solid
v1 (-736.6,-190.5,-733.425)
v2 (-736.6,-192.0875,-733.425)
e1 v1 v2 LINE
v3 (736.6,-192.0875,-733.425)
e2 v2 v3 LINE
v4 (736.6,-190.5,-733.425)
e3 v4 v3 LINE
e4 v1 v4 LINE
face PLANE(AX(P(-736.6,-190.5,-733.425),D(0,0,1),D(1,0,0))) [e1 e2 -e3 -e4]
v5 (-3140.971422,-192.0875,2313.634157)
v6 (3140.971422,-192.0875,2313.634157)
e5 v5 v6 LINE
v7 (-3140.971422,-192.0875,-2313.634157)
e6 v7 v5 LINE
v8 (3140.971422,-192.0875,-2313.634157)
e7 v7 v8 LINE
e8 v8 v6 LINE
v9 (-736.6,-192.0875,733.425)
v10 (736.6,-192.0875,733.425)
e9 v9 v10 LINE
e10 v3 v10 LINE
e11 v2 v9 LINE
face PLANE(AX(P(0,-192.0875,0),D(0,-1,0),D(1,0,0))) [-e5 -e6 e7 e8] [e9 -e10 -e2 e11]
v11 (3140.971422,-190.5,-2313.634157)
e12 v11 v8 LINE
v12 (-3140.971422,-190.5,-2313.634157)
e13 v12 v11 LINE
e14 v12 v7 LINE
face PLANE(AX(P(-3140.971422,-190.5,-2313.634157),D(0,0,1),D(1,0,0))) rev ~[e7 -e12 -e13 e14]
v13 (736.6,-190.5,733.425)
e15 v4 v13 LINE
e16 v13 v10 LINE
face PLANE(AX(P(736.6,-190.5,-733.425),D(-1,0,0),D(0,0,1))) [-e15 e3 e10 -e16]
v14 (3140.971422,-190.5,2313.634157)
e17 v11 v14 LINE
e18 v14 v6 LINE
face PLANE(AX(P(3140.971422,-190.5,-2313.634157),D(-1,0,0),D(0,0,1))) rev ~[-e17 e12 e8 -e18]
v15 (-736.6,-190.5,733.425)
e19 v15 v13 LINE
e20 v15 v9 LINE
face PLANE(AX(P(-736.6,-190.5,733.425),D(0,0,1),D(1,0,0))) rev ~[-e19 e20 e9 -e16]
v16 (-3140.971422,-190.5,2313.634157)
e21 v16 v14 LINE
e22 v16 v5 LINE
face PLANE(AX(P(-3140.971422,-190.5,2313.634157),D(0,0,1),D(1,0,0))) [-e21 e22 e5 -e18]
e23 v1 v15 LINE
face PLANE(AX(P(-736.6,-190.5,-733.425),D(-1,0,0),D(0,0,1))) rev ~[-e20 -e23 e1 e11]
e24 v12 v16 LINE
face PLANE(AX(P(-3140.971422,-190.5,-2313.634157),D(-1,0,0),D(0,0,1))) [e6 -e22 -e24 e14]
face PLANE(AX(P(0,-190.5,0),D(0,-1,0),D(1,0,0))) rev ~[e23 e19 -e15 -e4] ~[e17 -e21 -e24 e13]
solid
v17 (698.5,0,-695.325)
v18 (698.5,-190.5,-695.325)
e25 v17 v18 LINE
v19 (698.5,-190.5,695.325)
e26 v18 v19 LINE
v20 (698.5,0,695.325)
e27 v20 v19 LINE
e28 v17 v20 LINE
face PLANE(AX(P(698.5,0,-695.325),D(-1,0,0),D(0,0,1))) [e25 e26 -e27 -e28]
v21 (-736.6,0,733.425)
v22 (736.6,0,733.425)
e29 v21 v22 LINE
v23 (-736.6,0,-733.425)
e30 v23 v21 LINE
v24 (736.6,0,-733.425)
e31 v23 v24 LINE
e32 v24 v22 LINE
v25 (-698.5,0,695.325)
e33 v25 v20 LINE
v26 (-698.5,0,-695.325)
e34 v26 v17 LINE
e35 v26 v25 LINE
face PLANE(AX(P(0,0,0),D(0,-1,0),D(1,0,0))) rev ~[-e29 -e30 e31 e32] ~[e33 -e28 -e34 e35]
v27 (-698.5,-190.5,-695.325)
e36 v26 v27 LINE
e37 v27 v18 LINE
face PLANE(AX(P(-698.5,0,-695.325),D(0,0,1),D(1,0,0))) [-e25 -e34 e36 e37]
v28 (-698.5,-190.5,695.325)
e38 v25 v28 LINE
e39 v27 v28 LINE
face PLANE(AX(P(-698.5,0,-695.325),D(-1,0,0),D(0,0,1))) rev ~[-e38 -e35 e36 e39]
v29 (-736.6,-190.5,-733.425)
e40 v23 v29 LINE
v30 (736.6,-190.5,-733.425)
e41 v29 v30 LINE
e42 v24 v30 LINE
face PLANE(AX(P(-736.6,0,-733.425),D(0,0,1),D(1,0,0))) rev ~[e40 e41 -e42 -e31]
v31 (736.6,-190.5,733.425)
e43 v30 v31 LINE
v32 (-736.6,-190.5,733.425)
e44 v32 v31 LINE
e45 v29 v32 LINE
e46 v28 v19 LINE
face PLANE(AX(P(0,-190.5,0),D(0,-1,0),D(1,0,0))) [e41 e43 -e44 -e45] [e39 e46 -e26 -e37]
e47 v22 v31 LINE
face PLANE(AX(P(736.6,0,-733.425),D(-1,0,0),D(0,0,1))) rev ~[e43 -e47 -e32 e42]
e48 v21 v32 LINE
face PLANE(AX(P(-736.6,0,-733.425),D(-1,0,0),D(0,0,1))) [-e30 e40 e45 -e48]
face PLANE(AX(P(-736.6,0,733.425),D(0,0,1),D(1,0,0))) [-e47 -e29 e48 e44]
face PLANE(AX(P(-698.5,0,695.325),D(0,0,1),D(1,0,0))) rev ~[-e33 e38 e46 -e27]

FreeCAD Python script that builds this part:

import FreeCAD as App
import Part
import Sketcher
Q = App.Units.Quantity


def add_polygon(sketch, points):
    """Adds a closed chain of lines whose ends are joined by coincident constraints."""
    first, n = sketch.GeometryCount, len(points)
    for a, b in zip(points, points[1:] + points[:1]):
        sketch.addGeometry(Part.LineSegment(App.Vector(*a, 0), App.Vector(*b, 0)), False)
    for i in range(n):
        sketch.addConstraint(Sketcher.Constraint("Coincident", first + i, 2, first + (i + 1) % n, 1))

doc = App.newDocument("Part")
params = doc.addObject("Spreadsheet::Sheet", "Params")
for row, (alias, value) in enumerate([
    ("sketch1_width", "58 in"),
    ("sketch1_width2", "55 in"),
    ("sketch1_height", "57.75 in"),
    ("sketch1_height2", "54.75 in"),
    ("pad1_length", "7.5 in"),
    ("sketch2_width", "58 in"),
    ("sketch2_height", "57.75 in"),
    ("pad2_length", "0.0625 in"),
], start=1):
    params.set(f"A{row}", alias)
    params.set(f"B{row}", "=" + value)
    params.setAlias(f"B{row}", alias)

body = doc.addObject("PartDesign::Body", "Body")

# Sketch on XZ plane
sketch1 = body.newObject("Sketcher::SketchObject", "Sketch")
sketch1.AttachmentSupport = (doc.getObject("XZ_Plane"), [""])
sketch1.MapMode = "FlatFace"
add_polygon(sketch1, [(-737, 733), (-737, -733), (737, -733), (737, 733)])  # lines 0-3
add_polygon(sketch1, [(698, -695), (-698, -695), (-698, 695), (698, 695)])  # lines 4-7
sketch1.addConstraint(Sketcher.Constraint("Vertical", 0))
sketch1.addConstraint(Sketcher.Constraint("Horizontal", 1))
sketch1.addConstraint(Sketcher.Constraint("Vertical", 2))
sketch1.addConstraint(Sketcher.Constraint("Horizontal", 3))
sketch1.addConstraint(Sketcher.Constraint("Horizontal", 4))
sketch1.addConstraint(Sketcher.Constraint("Vertical", 5))
sketch1.addConstraint(Sketcher.Constraint("Horizontal", 6))
sketch1.addConstraint(Sketcher.Constraint("Vertical", 7))
sketch1.addConstraint(Sketcher.Constraint("Symmetric", 0, 2, 2, 2, -1, 1))
sketch1.addConstraint(Sketcher.Constraint("Symmetric", 4, 2, 6, 2, -1, 1))
sketch1.addConstraint(Sketcher.Constraint("DistanceX", 1, 1, 1, 2, Q("58 in")))
sketch1.addConstraint(Sketcher.Constraint("DistanceX", 4, 2, 4, 1, Q("55 in")))
sketch1.addConstraint(Sketcher.Constraint("DistanceY", 0, 2, 0, 1, Q("57.75 in")))
sketch1.addConstraint(Sketcher.Constraint("DistanceY", 5, 1, 5, 2, Q("54.75 in")))
sketch1.setExpression("Constraints[18]", "Params.sketch1_width")
sketch1.setExpression("Constraints[19]", "Params.sketch1_width2")
sketch1.setExpression("Constraints[20]", "Params.sketch1_height")
sketch1.setExpression("Constraints[21]", "Params.sketch1_height2")
pad1 = body.newObject("PartDesign::Pad", "Pad")
pad1.Profile = sketch1
pad1.setExpression("Length", "Params.pad1_length")
body2 = doc.addObject("PartDesign::Body", "Body001")

# Sketch on XZ plane
sketch2 = body2.newObject("Sketcher::SketchObject", "Sketch001")
sketch2.AttachmentSupport = (doc.getObject("XZ_Plane001"), [""])
sketch2.MapMode = "FlatFace"
sketch2.AttachmentOffset = App.Placement(App.Vector(0, 0, 7.5 * 25.4), App.Rotation())
add_polygon(sketch2, [(-3141, 2314), (-3141, -2314), (3141, -2314), (3141, 2314)])  # lines 0-3
add_polygon(sketch2, [(737, -733), (-737, -733), (-737, 733), (737, 733)])  # lines 4-7
sketch2.addConstraint(Sketcher.Constraint("Vertical", 0))
sketch2.addConstraint(Sketcher.Constraint("Horizontal", 1))
sketch2.addConstraint(Sketcher.Constraint("Vertical", 2))
sketch2.addConstraint(Sketcher.Constraint("Horizontal", 3))
sketch2.addConstraint(Sketcher.Constraint("Horizontal", 4))
sketch2.addConstraint(Sketcher.Constraint("Vertical", 5))
sketch2.addConstraint(Sketcher.Constraint("Horizontal", 6))
sketch2.addConstraint(Sketcher.Constraint("Vertical", 7))
sketch2.addConstraint(Sketcher.Constraint("Symmetric", 0, 2, 2, 2, -1, 1))
sketch2.addConstraint(Sketcher.Constraint("Symmetric", 4, 2, 6, 2, -1, 1))
sketch2.addConstraint(Sketcher.Constraint("DistanceX", 4, 2, 4, 1, Q("58 in")))
sketch2.addConstraint(Sketcher.Constraint("DistanceY", 5, 1, 5, 2, Q("57.75 in")))
sketch2.addConstraint(Sketcher.Constraint("DistanceX", 1, 1, 1, 2, 6281.942844))
sketch2.addConstraint(Sketcher.Constraint("DistanceY", 0, 2, 0, 1, 4627.268314))
sketch2.setExpression("Constraints[18]", "Params.sketch2_width")
sketch2.setExpression("Constraints[19]", "Params.sketch2_height")
pad2 = body2.newObject("PartDesign::Pad", "Pad001")
pad2.Profile = sketch2
pad2.setExpression("Length", "Params.pad2_length")

doc.recompute()
